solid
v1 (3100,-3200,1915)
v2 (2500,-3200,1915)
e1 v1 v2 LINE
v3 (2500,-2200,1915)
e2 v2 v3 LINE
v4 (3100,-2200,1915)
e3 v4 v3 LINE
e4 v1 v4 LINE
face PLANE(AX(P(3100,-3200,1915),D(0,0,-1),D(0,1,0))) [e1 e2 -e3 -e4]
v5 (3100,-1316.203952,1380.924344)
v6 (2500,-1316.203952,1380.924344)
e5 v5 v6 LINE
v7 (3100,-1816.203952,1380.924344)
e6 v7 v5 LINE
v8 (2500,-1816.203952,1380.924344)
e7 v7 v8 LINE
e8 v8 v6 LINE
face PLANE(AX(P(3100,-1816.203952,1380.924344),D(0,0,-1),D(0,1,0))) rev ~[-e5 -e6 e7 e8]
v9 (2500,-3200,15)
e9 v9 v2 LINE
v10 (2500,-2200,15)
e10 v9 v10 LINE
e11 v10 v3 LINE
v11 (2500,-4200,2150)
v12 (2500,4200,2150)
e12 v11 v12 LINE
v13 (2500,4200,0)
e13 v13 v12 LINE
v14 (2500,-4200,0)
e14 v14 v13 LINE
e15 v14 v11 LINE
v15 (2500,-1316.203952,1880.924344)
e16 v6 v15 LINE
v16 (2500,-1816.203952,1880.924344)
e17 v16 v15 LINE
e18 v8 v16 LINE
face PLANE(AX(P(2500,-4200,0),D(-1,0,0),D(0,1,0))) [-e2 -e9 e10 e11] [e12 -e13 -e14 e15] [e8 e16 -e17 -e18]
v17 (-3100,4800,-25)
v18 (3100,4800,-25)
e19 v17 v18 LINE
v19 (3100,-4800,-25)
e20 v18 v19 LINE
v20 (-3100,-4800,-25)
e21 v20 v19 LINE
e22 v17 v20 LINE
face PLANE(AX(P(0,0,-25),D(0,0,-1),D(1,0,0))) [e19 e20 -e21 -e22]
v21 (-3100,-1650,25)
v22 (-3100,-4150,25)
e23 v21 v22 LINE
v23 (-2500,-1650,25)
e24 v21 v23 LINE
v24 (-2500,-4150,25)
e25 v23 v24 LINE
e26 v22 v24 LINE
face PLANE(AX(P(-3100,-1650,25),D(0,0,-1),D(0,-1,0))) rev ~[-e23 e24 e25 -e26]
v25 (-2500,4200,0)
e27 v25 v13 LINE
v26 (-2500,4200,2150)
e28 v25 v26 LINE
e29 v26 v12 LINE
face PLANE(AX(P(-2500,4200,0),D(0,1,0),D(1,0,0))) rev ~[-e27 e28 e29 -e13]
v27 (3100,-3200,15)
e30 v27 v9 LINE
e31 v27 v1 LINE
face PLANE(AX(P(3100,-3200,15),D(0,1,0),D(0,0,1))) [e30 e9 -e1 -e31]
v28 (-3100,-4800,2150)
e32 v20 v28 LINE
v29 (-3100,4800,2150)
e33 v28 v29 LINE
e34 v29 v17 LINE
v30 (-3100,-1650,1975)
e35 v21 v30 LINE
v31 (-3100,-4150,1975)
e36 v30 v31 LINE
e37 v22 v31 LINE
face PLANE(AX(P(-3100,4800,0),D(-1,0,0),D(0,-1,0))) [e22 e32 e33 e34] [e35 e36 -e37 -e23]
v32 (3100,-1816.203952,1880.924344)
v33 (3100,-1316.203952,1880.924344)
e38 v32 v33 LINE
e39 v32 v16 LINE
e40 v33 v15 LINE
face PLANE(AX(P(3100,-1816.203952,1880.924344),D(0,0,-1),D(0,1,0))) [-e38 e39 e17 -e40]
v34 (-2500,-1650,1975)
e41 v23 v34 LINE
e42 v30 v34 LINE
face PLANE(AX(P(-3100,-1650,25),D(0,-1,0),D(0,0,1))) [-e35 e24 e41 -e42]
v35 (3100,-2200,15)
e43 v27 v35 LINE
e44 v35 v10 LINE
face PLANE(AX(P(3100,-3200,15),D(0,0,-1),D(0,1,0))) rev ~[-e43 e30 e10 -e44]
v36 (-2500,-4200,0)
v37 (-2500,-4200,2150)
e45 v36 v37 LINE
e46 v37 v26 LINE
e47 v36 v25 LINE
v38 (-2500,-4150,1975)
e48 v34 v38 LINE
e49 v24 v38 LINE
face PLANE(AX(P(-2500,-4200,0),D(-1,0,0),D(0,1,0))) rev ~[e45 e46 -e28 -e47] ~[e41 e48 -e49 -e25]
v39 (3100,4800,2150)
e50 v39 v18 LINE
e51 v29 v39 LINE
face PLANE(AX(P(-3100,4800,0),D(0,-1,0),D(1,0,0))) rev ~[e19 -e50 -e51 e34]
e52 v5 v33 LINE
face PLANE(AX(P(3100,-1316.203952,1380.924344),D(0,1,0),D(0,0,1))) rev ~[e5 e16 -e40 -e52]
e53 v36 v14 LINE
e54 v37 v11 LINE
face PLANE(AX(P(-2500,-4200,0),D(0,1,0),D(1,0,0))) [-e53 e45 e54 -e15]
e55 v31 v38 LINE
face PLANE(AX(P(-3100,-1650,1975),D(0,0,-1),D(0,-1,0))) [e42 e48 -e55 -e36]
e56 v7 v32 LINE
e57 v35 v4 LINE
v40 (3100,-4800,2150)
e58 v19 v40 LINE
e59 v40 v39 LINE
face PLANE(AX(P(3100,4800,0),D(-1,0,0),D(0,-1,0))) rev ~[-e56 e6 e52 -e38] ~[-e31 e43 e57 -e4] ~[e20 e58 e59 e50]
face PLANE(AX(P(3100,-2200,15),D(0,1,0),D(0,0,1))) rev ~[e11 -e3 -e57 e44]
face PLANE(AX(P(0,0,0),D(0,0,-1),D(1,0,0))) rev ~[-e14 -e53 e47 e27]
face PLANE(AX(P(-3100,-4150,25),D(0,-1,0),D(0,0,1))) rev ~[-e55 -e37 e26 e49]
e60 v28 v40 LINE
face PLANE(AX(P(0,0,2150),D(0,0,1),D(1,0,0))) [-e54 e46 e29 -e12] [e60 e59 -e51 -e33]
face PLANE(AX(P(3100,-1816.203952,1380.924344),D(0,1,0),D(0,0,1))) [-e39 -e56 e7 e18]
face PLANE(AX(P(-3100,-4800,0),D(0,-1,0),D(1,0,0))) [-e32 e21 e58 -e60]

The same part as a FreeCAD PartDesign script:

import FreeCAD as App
import Part
import Sketcher
Q = App.Units.Quantity

doc = App.newDocument("Part")
params = doc.addObject("Spreadsheet::Sheet", "Params")
for row, (alias, value) in enumerate([
    ("sketch1_width", "6200 mm"),
    ("sketch1_width2", "5000 mm"),
    ("sketch1_height", "9600 mm"),
    ("sketch1_height2", "8400 mm"),
    ("pad1_length", "2150 mm"),
    ("sketch2_width", "6200 mm"),
    ("sketch2_height", "9600 mm"),
    ("pad2_length", "25 mm"),
    ("sketch3_width", "2500 mm"),
    ("sketch3_height", "1950 mm"),
    ("pocket1_length", "600 mm"),
    ("sketch4_width", "1000 mm"),
    ("sketch4_width2", "500 mm"),
    ("sketch4_height", "1900 mm"),
    ("pocket2_length", "600 mm"),
], start=1):
    params.set(f"A{row}", alias)
    params.set(f"B{row}", "=" + value)
    params.setAlias(f"B{row}", alias)

body = doc.addObject("PartDesign::Body", "Body")

# Sketch on XY plane
sketch1 = body.newObject("Sketcher::SketchObject", "Sketch")
sketch1.AttachmentSupport = (doc.getObject("XY_Plane"), [""])
sketch1.MapMode = "FlatFace"
sketch1.addGeometry(Part.LineSegment(App.Vector(-3100, 4800, 0), App.Vector(-3100, -4800, 0)), False)
sketch1.addGeometry(Part.LineSegment(App.Vector(-3100, -4800, 0), App.Vector(3100, -4800, 0)), False)
sketch1.addGeometry(Part.LineSegment(App.Vector(3100, -4800, 0), App.Vector(3100, 4800, 0)), False)
sketch1.addGeometry(Part.LineSegment(App.Vector(3100, 4800, 0), App.Vector(-3100, 4800, 0)), False)
sketch1.addGeometry(Part.LineSegment(App.Vector(2500, -4200, 0), App.Vector(-2500, -4200, 0)), False)
sketch1.addGeometry(Part.LineSegment(App.Vector(-2500, -4200, 0), App.Vector(-2500, 4200, 0)), False)
sketch1.addGeometry(Part.LineSegment(App.Vector(-2500, 4200, 0), App.Vector(2500, 4200, 0)), False)
sketch1.addGeometry(Part.LineSegment(App.Vector(2500, 4200, 0), App.Vector(2500, -4200, 0)), False)
sketch1.addConstraint(Sketcher.Constraint("Coincident", 0, 2, 1, 1))
sketch1.addConstraint(Sketcher.Constraint("Coincident", 1, 2, 2, 1))
sketch1.addConstraint(Sketcher.Constraint("Coincident", 2, 2, 3, 1))
sketch1.addConstraint(Sketcher.Constraint("Coincident", 3, 2, 0, 1))
sketch1.addConstraint(Sketcher.Constraint("Coincident", 4, 2, 5, 1))
sketch1.addConstraint(Sketcher.Constraint("Coincident", 5, 2, 6, 1))
sketch1.addConstraint(Sketcher.Constraint("Coincident", 6, 2, 7, 1))
sketch1.addConstraint(Sketcher.Constraint("Coincident", 7, 2, 4, 1))
sketch1.addConstraint(Sketcher.Constraint("Vertical", 0))
sketch1.addConstraint(Sketcher.Constraint("Horizontal", 1))
sketch1.addConstraint(Sketcher.Constraint("Vertical", 2))
sketch1.addConstraint(Sketcher.Constraint("Horizontal", 3))
sketch1.addConstraint(Sketcher.Constraint("Horizontal", 4))
sketch1.addConstraint(Sketcher.Constraint("Vertical", 5))
sketch1.addConstraint(Sketcher.Constraint("Horizontal", 6))
sketch1.addConstraint(Sketcher.Constraint("Vertical", 7))
sketch1.addConstraint(Sketcher.Constraint("Symmetric", 0, 2, 2, 2, -1, 1))
sketch1.addConstraint(Sketcher.Constraint("Symmetric", 4, 2, 6, 2, -1, 1))
sketch1.addConstraint(Sketcher.Constraint("DistanceX", 1, 1, 1, 2, Q("6200 mm")))
sketch1.addConstraint(Sketcher.Constraint("DistanceX", 4, 2, 4, 1, Q("5000 mm")))
sketch1.addConstraint(Sketcher.Constraint("DistanceY", 0, 2, 0, 1, Q("9600 mm")))
sketch1.addConstraint(Sketcher.Constraint("DistanceY", 5, 1, 5, 2, Q("8400 mm")))
sketch1.setExpression("Constraints[18]", "Params.sketch1_width")
sketch1.setExpression("Constraints[19]", "Params.sketch1_width2")
sketch1.setExpression("Constraints[20]", "Params.sketch1_height")
sketch1.setExpression("Constraints[21]", "Params.sketch1_height2")
pad1 = body.newObject("PartDesign::Pad", "Pad")
pad1.Profile = sketch1
pad1.setExpression("Length", "Params.pad1_length")

# Sketch on XY plane
sketch2 = body.newObject("Sketcher::SketchObject", "Sketch001")
sketch2.AttachmentSupport = (doc.getObject("XY_Plane"), [""])
sketch2.MapMode = "FlatFace"
sketch2.addGeometry(Part.LineSegment(App.Vector(-3100, -4800, 0), App.Vector(-3100, 4800, 0)), False)
sketch2.addGeometry(Part.LineSegment(App.Vector(-3100, 4800, 0), App.Vector(3100, 4800, 0)), False)
sketch2.addGeometry(Part.LineSegment(App.Vector(3100, 4800, 0), App.Vector(3100, -4800, 0)), False)
sketch2.addGeometry(Part.LineSegment(App.Vector(3100, -4800, 0), App.Vector(-3100, -4800, 0)), False)
sketch2.addConstraint(Sketcher.Constraint("Coincident", 0, 2, 1, 1))
sketch2.addConstraint(Sketcher.Constraint("Coincident", 1, 2, 2, 1))
sketch2.addConstraint(Sketcher.Constraint("Coincident", 2, 2, 3, 1))
sketch2.addConstraint(Sketcher.Constraint("Coincident", 3, 2, 0, 1))
sketch2.addConstraint(Sketcher.Constraint("Vertical", 0))
sketch2.addConstraint(Sketcher.Constraint("Horizontal", 1))
sketch2.addConstraint(Sketcher.Constraint("Vertical", 2))
sketch2.addConstraint(Sketcher.Constraint("Horizontal", 3))
sketch2.addConstraint(Sketcher.Constraint("Symmetric", 0, 2, 2, 2, -1, 1))
sketch2.addConstraint(Sketcher.Constraint("DistanceX", 1, 1, 1, 2, Q("6200 mm")))
sketch2.addConstraint(Sketcher.Constraint("DistanceY", 0, 1, 0, 2, Q("9600 mm")))
sketch2.setExpression("Constraints[9]", "Params.sketch2_width")
sketch2.setExpression("Constraints[10]", "Params.sketch2_height")
pad2 = body.newObject("PartDesign::Pad", "Pad001")
pad2.Profile = sketch2
pad2.setExpression("Length", "Params.pad2_length")
pad2.Reversed = True

# Sketch on YZ plane
sketch3 = body.newObject("Sketcher::SketchObject", "Sketch002")
sketch3.AttachmentSupport = (doc.getObject("YZ_Plane"), [""])
sketch3.MapMode = "FlatFace"
sketch3.AttachmentOffset = App.Placement(App.Vector(0, 0, -3100), App.Rotation())
sketch3.addGeometry(Part.LineSegment(App.Vector(-1650, 1975, 0), App.Vector(-1650, 25, 0)), False)
sketch3.addGeometry(Part.LineSegment(App.Vector(-1650, 25, 0), App.Vector(-4150, 25, 0)), False)
sketch3.addGeometry(Part.LineSegment(App.Vector(-4150, 25, 0), App.Vector(-4150, 1975, 0)), False)
sketch3.addGeometry(Part.LineSegment(App.Vector(-4150, 1975, 0), App.Vector(-1650, 1975, 0)), False)
sketch3.addConstraint(Sketcher.Constraint("Coincident", 0, 2, 1, 1))
sketch3.addConstraint(Sketcher.Constraint("Coincident", 1, 2, 2, 1))
sketch3.addConstraint(Sketcher.Constraint("Coincident", 2, 2, 3, 1))
sketch3.addConstraint(Sketcher.Constraint("Coincident", 3, 2, 0, 1))
sketch3.addConstraint(Sketcher.Constraint("Vertical", 0))
sketch3.addConstraint(Sketcher.Constraint("Horizontal", 1))
sketch3.addConstraint(Sketcher.Constraint("Vertical", 2))
sketch3.addConstraint(Sketcher.Constraint("Horizontal", 3))
sketch3.addConstraint(Sketcher.Constraint("DistanceX", 1, 2, 1, 1, Q("2500 mm")))
sketch3.addConstraint(Sketcher.Constraint("DistanceY", 0, 2, 0, 1, Q("1950 mm")))
sketch3.addConstraint(Sketcher.Constraint("DistanceX", 0, 2, -1, 1, Q("1650 mm")))
sketch3.addConstraint(Sketcher.Constraint("DistanceY", -1, 1, 0, 2, Q("25 mm")))
sketch3.setExpression("Constraints[8]", "Params.sketch3_width")
sketch3.setExpression("Constraints[9]", "Params.sketch3_height")
pocket1 = body.newObject("PartDesign::Pocket", "Pocket")
pocket1.Profile = sketch3
pocket1.setExpression("Length", "Params.pocket1_length")
pocket1.Reversed = True

# Sketch on YZ plane
sketch4 = body.newObject("Sketcher::SketchObject", "Sketch003")
sketch4.AttachmentSupport = (doc.getObject("YZ_Plane"), [""])
sketch4.MapMode = "FlatFace"
sketch4.AttachmentOffset = App.Placement(App.Vector(0, 0, 3100), App.Rotation())
sketch4.addGeometry(Part.LineSegment(App.Vector(-3200, 1915, 0), App.Vector(-3200, 15, 0)), False)
sketch4.addGeometry(Part.LineSegment(App.Vector(-3200, 15, 0), App.Vector(-2200, 15, 0)), False)
sketch4.addGeometry(Part.LineSegment(App.Vector(-2200, 15, 0), App.Vector(-2200, 1915, 0)), False)
sketch4.addGeometry(Part.LineSegment(App.Vector(-2200, 1915, 0), App.Vector(-3200, 1915, 0)), False)
sketch4.addGeometry(Part.LineSegment(App.Vector(-1816, 1881, 0), App.Vector(-1816, 1381, 0)), False)
sketch4.addGeometry(Part.LineSegment(App.Vector(-1816, 1381, 0), App.Vector(-1316, 1381, 0)), False)
sketch4.addGeometry(Part.LineSegment(App.Vector(-1316, 1381, 0), App.Vector(-1316, 1881, 0)), False)
sketch4.addGeometry(Part.LineSegment(App.Vector(-1316, 1881, 0), App.Vector(-1816, 1881, 0)), False)
sketch4.addConstraint(Sketcher.Constraint("Coincident", 0, 2, 1, 1))
sketch4.addConstraint(Sketcher.Constraint("Coincident", 1, 2, 2, 1))
sketch4.addConstraint(Sketcher.Constraint("Coincident", 2, 2, 3, 1))
sketch4.addConstraint(Sketcher.Constraint("Coincident", 3, 2, 0, 1))
sketch4.addConstraint(Sketcher.Constraint("Coincident", 4, 2, 5, 1))
sketch4.addConstraint(Sketcher.Constraint("Coincident", 5, 2, 6, 1))
sketch4.addConstraint(Sketcher.Constraint("Coincident", 6, 2, 7, 1))
sketch4.addConstraint(Sketcher.Constraint("Coincident", 7, 2, 4, 1))
sketch4.addConstraint(Sketcher.Constraint("Vertical", 0))
sketch4.addConstraint(Sketcher.Constraint("Horizontal", 1))
sketch4.addConstraint(Sketcher.Constraint("Vertical", 2))
sketch4.addConstraint(Sketcher.Constraint("Horizontal", 3))
sketch4.addConstraint(Sketcher.Constraint("Vertical", 4))
sketch4.addConstraint(Sketcher.Constraint("Horizontal", 5))
sketch4.addConstraint(Sketcher.Constraint("Vertical", 6))
sketch4.addConstraint(Sketcher.Constraint("Horizontal", 7))
sketch4.addConstraint(Sketcher.Constraint("Equal", 7, 4))
sketch4.addConstraint(Sketcher.Constraint("DistanceX", 1, 1, 1, 2, Q("1000 mm")))
sketch4.addConstraint(Sketcher.Constraint("DistanceX", 5, 1, 5, 2, Q("500 mm")))
sketch4.addConstraint(Sketcher.Constraint("DistanceY", 0, 2, 0, 1, Q("1900 mm")))
sketch4.addConstraint(Sketcher.Constraint("DistanceX", 0, 2, -1, 1, Q("3200 mm")))
sketch4.addConstraint(Sketcher.Constraint("DistanceY", -1, 1, 0, 2, Q("15 mm")))
sketch4.addConstraint(Sketcher.Constraint("DistanceX", 4, 2, -1, 1, Q("1816.203952 mm")))
sketch4.addConstraint(Sketcher.Constraint("DistanceY", -1, 1, 4, 2, Q("1380.924344 mm")))
sketch4.setExpression("Constraints[17]", "Params.sketch4_width")
sketch4.setExpression("Constraints[18]", "Params.sketch4_width2")
sketch4.setExpression("Constraints[19]", "Params.sketch4_height")
pocket2 = body.newObject("PartDesign::Pocket", "Pocket001")
pocket2.Profile = sketch4
pocket2.setExpression("Length", "Params.pocket2_length")

doc.recompute()
